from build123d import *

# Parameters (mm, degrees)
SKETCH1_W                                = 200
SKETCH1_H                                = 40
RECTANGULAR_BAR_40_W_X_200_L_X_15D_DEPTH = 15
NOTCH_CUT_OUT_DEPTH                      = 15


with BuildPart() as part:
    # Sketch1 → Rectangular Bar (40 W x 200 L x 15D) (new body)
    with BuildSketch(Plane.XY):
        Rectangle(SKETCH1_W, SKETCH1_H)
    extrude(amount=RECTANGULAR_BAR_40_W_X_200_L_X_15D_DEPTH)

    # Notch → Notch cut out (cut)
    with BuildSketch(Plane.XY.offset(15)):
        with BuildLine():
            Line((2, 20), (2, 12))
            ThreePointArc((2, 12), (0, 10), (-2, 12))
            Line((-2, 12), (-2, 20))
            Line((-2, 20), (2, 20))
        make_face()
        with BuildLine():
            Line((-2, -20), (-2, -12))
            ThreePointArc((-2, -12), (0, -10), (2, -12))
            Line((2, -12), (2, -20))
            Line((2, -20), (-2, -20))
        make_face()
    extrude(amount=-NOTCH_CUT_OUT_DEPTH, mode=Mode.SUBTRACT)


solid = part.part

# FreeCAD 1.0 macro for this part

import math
import FreeCAD as App
import Part
import Sketcher
from FreeCAD import Vector
Q = App.Units.Quantity

doc = App.newDocument("Part")
body = doc.addObject("PartDesign::Body", "Body")

# Sketch on XY plane
sketch1 = body.newObject("Sketcher::SketchObject", "Sketch")
sketch1.AttachmentSupport = (doc.getObject("XY_Plane"), [""])
sketch1.MapMode = "FlatFace"
sketch1.addGeometry(Part.LineSegment(Vector(-100, 20, 0), Vector(-100, -20, 0)), False)
sketch1.addGeometry(Part.LineSegment(Vector(-100, -20, 0), Vector(100, -20, 0)), False)
sketch1.addGeometry(Part.LineSegment(Vector(100, -20, 0), Vector(100, 20, 0)), False)
sketch1.addGeometry(Part.LineSegment(Vector(100, 20, 0), Vector(-100, 20, 0)), False)
sketch1.addConstraint(Sketcher.Constraint("Coincident", 0, 2, 1, 1))
sketch1.addConstraint(Sketcher.Constraint("Coincident", 1, 2, 2, 1))
sketch1.addConstraint(Sketcher.Constraint("Coincident", 2, 2, 3, 1))
sketch1.addConstraint(Sketcher.Constraint("Coincident", 3, 2, 0, 1))
sketch1.addConstraint(Sketcher.Constraint("Vertical", 0))
sketch1.addConstraint(Sketcher.Constraint("Horizontal", 1))
sketch1.addConstraint(Sketcher.Constraint("Vertical", 2))
sketch1.addConstraint(Sketcher.Constraint("Horizontal", 3))
sketch1.addConstraint(Sketcher.Constraint("Symmetric", 0, 2, 2, 2, -1, 1))
sketch1.addConstraint(Sketcher.Constraint("DistanceX", 1, 1, 1, 2, Q("200 mm")))
sketch1.addConstraint(Sketcher.Constraint("DistanceY", 0, 2, 0, 1, Q("40 mm")))
pad1 = body.newObject("PartDesign::Pad", "Pad")
pad1.Profile = sketch1
pad1.Length = 15

# Sketch on XY plane
sketch2 = body.newObject("Sketcher::SketchObject", "Sketch001")
sketch2.AttachmentSupport = (doc.getObject("XY_Plane"), [""])
sketch2.MapMode = "FlatFace"
sketch2.AttachmentOffset = App.Placement(Vector(0, 0, 15), App.Rotation())
sketch2.addGeometry(Part.LineSegment(Vector(2, 12, 0), Vector(2, 20, 0)), False)
sketch2.addGeometry(Part.LineSegment(Vector(2, 20, 0), Vector(-2, 20, 0)), False)
sketch2.addGeometry(Part.LineSegment(Vector(-2, 20, 0), Vector(-2, 12, 0)), False)
sketch2.addGeometry(Part.ArcOfCircle(Part.Circle(Vector(0, 12, 0), Vector(0, 0, 1), 2), math.radians(180), math.radians(360)), False)
sketch2.addGeometry(Part.LineSegment(Vector(-2, -12, 0), Vector(-2, -20, 0)), False)
sketch2.addGeometry(Part.LineSegment(Vector(-2, -20, 0), Vector(2, -20, 0)), False)
sketch2.addGeometry(Part.LineSegment(Vector(2, -20, 0), Vector(2, -12, 0)), False)
sketch2.addGeometry(Part.ArcOfCircle(Part.Circle(Vector(0, -12, 0), Vector(0, 0, 1), 2), math.radians(0), math.radians(180)), False)
sketch2.addConstraint(Sketcher.Constraint("Coincident", 0, 2, 1, 1))
sketch2.addConstraint(Sketcher.Constraint("Coincident", 1, 2, 2, 1))
sketch2.addConstraint(Sketcher.Constraint("Tangent", 2, 2, 3, 1))
sketch2.addConstraint(Sketcher.Constraint("Tangent", 3, 2, 0, 1))
sketch2.addConstraint(Sketcher.Constraint("Coincident", 4, 2, 5, 1))
sketch2.addConstraint(Sketcher.Constraint("Coincident", 5, 2, 6, 1))
sketch2.addConstraint(Sketcher.Constraint("Tangent", 6, 2, 7, 1))
sketch2.addConstraint(Sketcher.Constraint("Tangent", 7, 2, 4, 1))
sketch2.addConstraint(Sketcher.Constraint("Vertical", 0))
sketch2.addConstraint(Sketcher.Constraint("Horizontal", 1))
sketch2.addConstraint(Sketcher.Constraint("Vertical", 2))
sketch2.addConstraint(Sketcher.Constraint("Vertical", 4))
sketch2.addConstraint(Sketcher.Constraint("Horizontal", 5))
sketch2.addConstraint(Sketcher.Constraint("Vertical", 6))
sketch2.addConstraint(Sketcher.Constraint("Equal", 3, 7))
sketch2.addConstraint(Sketcher.Constraint("Symmetric", 3, 3, 7, 3, -1, 1))
sketch2.addConstraint(Sketcher.Constraint("Symmetric", 1, 2, 4, 2, -1))
sketch2.addConstraint(Sketcher.Constraint("Radius", 3, Q("2 mm")))
sketch2.addConstraint(Sketcher.Constraint("DistanceY", 0, 1, 0, 2, Q("8 mm")))
sketch2.addConstraint(Sketcher.Constraint("DistanceY", -1, 1, 3, 3, Q("12 mm")))
pocket1 = body.newObject("PartDesign::Pocket", "Pocket")
pocket1.Profile = sketch2
pocket1.Length = 15

doc.recompute()
